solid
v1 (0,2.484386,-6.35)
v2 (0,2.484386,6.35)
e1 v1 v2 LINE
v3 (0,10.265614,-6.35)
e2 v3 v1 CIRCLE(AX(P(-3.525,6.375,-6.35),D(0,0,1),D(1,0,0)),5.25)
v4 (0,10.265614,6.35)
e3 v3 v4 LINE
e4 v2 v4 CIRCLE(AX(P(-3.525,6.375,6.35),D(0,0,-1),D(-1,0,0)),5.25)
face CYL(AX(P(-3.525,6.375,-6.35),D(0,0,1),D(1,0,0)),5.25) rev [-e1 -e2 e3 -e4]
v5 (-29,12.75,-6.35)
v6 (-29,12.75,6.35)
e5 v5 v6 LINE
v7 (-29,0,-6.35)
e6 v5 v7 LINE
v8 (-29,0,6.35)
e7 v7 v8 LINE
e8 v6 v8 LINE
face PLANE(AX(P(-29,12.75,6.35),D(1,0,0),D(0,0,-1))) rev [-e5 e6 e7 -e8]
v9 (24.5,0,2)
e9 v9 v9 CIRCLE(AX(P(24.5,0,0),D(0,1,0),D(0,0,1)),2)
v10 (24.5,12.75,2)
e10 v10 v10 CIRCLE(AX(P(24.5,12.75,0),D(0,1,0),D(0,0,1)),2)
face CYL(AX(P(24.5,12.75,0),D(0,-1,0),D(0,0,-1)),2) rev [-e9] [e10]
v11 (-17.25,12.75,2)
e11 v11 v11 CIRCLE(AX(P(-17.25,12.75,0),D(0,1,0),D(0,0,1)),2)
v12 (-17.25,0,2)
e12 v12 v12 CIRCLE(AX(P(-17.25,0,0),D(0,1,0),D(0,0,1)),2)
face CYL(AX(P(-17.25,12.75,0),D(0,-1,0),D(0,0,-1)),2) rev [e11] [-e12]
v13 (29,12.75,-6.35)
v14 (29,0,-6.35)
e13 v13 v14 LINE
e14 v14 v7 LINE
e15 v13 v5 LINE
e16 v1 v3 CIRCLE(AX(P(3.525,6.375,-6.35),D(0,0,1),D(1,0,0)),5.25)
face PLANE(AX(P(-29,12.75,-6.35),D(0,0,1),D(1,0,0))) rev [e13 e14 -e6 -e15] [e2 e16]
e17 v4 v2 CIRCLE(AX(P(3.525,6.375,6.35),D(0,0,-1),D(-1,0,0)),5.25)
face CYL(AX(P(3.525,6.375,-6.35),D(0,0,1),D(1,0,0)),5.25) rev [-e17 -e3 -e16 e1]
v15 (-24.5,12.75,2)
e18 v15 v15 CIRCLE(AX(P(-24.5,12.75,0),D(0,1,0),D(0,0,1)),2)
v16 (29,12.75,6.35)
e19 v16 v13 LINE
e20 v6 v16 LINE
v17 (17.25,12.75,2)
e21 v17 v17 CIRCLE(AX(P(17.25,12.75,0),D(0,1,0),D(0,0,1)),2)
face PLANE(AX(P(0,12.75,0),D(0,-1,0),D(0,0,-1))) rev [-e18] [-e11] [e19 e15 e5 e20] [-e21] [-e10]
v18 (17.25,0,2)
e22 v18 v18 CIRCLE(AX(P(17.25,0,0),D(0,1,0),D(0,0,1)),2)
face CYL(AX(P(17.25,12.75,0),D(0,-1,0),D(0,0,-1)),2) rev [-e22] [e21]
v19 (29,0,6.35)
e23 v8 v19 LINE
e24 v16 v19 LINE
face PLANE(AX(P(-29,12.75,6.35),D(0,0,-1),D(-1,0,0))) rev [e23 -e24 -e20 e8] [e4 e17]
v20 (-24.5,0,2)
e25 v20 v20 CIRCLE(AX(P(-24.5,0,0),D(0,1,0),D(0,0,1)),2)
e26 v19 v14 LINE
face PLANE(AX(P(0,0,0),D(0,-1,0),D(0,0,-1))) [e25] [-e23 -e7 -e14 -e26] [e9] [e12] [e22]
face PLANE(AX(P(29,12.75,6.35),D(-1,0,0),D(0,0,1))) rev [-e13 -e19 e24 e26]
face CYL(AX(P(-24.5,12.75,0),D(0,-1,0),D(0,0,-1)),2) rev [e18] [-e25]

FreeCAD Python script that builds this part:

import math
import FreeCAD as App
import Part
import Sketcher
from FreeCAD import Vector


def add_polygon(sketch, points):
    """Adds a closed chain of lines whose ends are joined by coincident constraints."""
    first, n = sketch.GeometryCount, len(points)
    for a, b in zip(points, points[1:] + points[:1]):
        sketch.addGeometry(Part.LineSegment(App.Vector(*a, 0), App.Vector(*b, 0)), False)
    for i in range(n):
        sketch.addConstraint(Sketcher.Constraint("Coincident", first + i, 2, first + (i + 1) % n, 1))

doc = App.newDocument("Part")
body = doc.addObject("PartDesign::Body", "Body")

# Sketch on XZ plane
sketch1 = body.newObject("Sketcher::SketchObject", "Sketch")
sketch1.AttachmentSupport = (doc.getObject("XZ_Plane"), [""])
sketch1.MapMode = "FlatFace"
add_polygon(sketch1, [(-29, -6.3), (-29, 6.3), (29, 6.3), (29, -6.3)])  # lines 0-3
sketch1.addGeometry(Part.Circle(Vector(-24.5, 0, 0), Vector(0, 0, 1), 2), False)  # 4
sketch1.addGeometry(Part.Circle(Vector(-17.2, 0, 0), Vector(0, 0, 1), 2), False)  # 5
sketch1.addGeometry(Part.Circle(Vector(17.2, 0, 0), Vector(0, 0, 1), 2), False)  # 6
sketch1.addGeometry(Part.Circle(Vector(24.5, 0, 0), Vector(0, 0, 1), 2), False)  # 7
sketch1.addConstraint(Sketcher.Constraint("Vertical", 0))
sketch1.addConstraint(Sketcher.Constraint("Horizontal", 1))
sketch1.addConstraint(Sketcher.Constraint("Vertical", 2))
sketch1.addConstraint(Sketcher.Constraint("Horizontal", 3))
sketch1.addConstraint(Sketcher.Constraint("Equal", 4, 5))
sketch1.addConstraint(Sketcher.Constraint("Equal", 5, 6))
sketch1.addConstraint(Sketcher.Constraint("Equal", 6, 7))
sketch1.addConstraint(Sketcher.Constraint("Symmetric", 5, 3, 6, 3, -1, 1))
sketch1.addConstraint(Sketcher.Constraint("Symmetric", 4, 3, 7, 3, -1, 1))
sketch1.addConstraint(Sketcher.Constraint("Symmetric", 0, 2, 2, 2, -1, 1))
sketch1.addConstraint(Sketcher.Constraint("PointOnObject", 4, 3, -1))
sketch1.addConstraint(Sketcher.Constraint("PointOnObject", 5, 3, -1))
sketch1.addConstraint(Sketcher.Constraint("Diameter", 4, 4.0))
sketch1.addConstraint(Sketcher.Constraint("DistanceX", 1, 1, 1, 2, 58.0))
sketch1.addConstraint(Sketcher.Constraint("DistanceY", 0, 1, 0, 2, 12.7))
sketch1.addConstraint(Sketcher.Constraint("DistanceX", 4, 3, 7, 3, 49.0))
sketch1.addConstraint(Sketcher.Constraint("DistanceX", 5, 3, 6, 3, 34.5))
pad1 = body.newObject("PartDesign::Pad", "Pad")
pad1.Profile = sketch1
pad1.Length = 12.75
pad1.Reversed = True

# Sketch on XY plane
sketch2 = body.newObject("Sketcher::SketchObject", "Sketch001")
sketch2.AttachmentSupport = (doc.getObject("XY_Plane"), [""])
sketch2.MapMode = "FlatFace"
sketch2.AttachmentOffset = App.Placement(Vector(0, 0, 6.35), App.Rotation())
sketch2.addGeometry(Part.ArcOfCircle(Part.Circle(Vector(-4, 6, 0), Vector(0, 0, 1), 5), math.radians(48), math.radians(312)), False)
sketch2.addGeometry(Part.ArcOfCircle(Part.Circle(Vector(4, 6, 0), Vector(0, 0, 1), 5), math.radians(-132), math.radians(132)), False)
sketch2.addConstraint(Sketcher.Constraint("Coincident", 0, 1, 1, 2))
sketch2.addConstraint(Sketcher.Constraint("Coincident", 1, 1, 0, 2))
sketch2.addConstraint(Sketcher.Constraint("Equal", 0, 1))
sketch2.addConstraint(Sketcher.Constraint("Symmetric", 0, 3, 1, 3, -2))
sketch2.addConstraint(Sketcher.Constraint("Radius", 0, 5.25))
sketch2.addConstraint(Sketcher.Constraint("DistanceX", 0, 3, 1, 3, 7.05))
sketch2.addConstraint(Sketcher.Constraint("DistanceY", -1, 1, 0, 3, 6.375))
pocket1 = body.newObject("PartDesign::Pocket", "Pocket")
pocket1.Profile = sketch2
pocket1.Type = "ThroughAll"
pocket1.Midplane = True

doc.recompute()
